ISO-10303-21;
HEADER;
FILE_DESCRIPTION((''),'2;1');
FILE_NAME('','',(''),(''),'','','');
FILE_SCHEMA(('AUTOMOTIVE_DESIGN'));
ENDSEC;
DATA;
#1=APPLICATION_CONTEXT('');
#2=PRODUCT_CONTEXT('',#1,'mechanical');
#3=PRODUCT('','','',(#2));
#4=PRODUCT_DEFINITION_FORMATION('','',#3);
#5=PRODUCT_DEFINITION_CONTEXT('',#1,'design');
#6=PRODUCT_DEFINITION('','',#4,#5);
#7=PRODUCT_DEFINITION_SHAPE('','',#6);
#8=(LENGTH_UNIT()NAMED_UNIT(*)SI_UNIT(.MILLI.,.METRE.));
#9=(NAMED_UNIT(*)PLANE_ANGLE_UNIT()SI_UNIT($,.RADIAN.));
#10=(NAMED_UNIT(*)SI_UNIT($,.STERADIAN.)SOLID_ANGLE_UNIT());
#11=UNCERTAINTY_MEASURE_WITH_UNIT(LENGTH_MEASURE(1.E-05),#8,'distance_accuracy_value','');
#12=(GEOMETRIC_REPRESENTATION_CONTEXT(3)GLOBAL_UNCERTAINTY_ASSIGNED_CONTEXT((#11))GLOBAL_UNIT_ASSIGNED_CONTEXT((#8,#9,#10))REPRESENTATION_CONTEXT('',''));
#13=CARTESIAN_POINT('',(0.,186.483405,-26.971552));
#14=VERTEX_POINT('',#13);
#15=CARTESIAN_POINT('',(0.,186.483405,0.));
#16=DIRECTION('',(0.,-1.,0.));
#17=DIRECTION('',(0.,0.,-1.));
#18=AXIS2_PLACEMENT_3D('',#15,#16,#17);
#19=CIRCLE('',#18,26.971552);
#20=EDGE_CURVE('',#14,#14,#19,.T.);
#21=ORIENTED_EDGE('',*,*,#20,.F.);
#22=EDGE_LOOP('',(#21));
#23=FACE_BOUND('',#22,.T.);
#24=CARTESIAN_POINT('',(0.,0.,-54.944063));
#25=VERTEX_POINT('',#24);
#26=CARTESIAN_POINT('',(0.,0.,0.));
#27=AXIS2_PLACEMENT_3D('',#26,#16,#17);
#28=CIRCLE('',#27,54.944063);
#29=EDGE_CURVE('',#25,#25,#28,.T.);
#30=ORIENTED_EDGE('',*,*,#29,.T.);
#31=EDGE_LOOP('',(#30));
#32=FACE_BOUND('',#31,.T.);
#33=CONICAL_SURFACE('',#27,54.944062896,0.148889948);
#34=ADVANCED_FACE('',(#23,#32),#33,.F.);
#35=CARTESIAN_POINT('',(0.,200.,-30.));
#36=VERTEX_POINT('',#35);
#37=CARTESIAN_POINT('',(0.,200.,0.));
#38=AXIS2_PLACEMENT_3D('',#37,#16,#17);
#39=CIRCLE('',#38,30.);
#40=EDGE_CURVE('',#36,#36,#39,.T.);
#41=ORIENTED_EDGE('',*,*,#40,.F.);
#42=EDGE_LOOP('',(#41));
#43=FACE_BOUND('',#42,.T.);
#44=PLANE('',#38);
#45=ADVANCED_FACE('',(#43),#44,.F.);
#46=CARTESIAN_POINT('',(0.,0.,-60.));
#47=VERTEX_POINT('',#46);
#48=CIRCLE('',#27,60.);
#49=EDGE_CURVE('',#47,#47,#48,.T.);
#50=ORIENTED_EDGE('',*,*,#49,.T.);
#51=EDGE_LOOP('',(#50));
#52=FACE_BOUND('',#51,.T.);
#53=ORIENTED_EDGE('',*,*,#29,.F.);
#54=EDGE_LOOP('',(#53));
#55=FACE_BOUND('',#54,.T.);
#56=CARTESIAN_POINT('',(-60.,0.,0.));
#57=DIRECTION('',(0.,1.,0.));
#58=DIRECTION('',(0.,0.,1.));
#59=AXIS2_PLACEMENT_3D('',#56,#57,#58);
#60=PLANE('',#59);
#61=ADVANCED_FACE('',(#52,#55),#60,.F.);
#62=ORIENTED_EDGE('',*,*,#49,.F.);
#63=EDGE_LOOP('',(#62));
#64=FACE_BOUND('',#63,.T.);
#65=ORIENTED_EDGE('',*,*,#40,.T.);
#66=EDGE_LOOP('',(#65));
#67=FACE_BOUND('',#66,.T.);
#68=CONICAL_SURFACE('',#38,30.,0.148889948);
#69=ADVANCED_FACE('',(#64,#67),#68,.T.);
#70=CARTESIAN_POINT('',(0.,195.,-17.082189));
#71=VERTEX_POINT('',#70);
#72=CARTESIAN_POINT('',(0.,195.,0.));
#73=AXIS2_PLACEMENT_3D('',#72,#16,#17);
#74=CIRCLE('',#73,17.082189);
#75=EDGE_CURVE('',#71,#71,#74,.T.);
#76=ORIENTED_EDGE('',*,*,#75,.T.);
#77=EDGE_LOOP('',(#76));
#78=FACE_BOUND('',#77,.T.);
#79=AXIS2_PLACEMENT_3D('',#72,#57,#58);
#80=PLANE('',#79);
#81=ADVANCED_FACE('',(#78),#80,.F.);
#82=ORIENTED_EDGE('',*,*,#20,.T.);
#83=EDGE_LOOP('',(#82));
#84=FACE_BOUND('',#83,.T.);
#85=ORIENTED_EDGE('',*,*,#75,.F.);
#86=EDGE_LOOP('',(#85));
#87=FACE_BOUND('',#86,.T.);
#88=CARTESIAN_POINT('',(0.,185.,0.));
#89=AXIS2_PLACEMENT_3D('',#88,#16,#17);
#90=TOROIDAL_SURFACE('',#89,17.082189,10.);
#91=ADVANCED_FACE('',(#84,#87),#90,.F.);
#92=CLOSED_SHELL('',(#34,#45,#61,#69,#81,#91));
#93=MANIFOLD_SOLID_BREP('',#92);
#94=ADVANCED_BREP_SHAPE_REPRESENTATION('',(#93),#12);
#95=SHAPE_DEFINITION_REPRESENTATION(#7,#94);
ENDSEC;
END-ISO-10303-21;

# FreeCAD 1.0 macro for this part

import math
import FreeCAD as App
import Part
import Sketcher
from FreeCAD import Vector
Q = App.Units.Quantity

doc = App.newDocument("Part")
body = doc.addObject("PartDesign::Body", "Body")

# Sketch on XY plane
sketch1 = doc.addObject("Sketcher::SketchObject", "Sketch")
body.addObject(sketch1)
sketch1.AttachmentSupport = (doc.XY_Plane, [""])
sketch1.MapMode = "FlatFace"
sketch1.addGeometry([
    Part.LineSegment(Vector(-55, 0, 0), Vector(-42, 86, 0)),  # 0
    Part.LineSegment(Vector(-42, 86, 0), Vector(-27, 186, 0)),  # 1
    Part.ArcOfCircle(Part.Circle(Vector(-17, 185, 0), Vector(0, 0, 1), 10), math.radians(90), math.radians(171)),  # 2
    Part.LineSegment(Vector(-17, 195, 0), Vector(0, 195, 0)),  # 3
    Part.LineSegment(Vector(0, 195, 0), Vector(0, 200, 0)),  # 4
    Part.LineSegment(Vector(0, 200, 0), Vector(-30, 200, 0)),  # 5
    Part.LineSegment(Vector(-30, 200, 0), Vector(-60, 0, 0)),  # 6
    Part.LineSegment(Vector(-60, 0, 0), Vector(-55, 0, 0)),  # 7
], False)
sketch1.addConstraint([
    Sketcher.Constraint("Coincident", 0, 2, 1, 1),
    Sketcher.Constraint("Tangent", 1, 2, 2, 2),
    Sketcher.Constraint("Tangent", 2, 1, 3, 1),
    Sketcher.Constraint("Coincident", 3, 2, 4, 1),
    Sketcher.Constraint("Coincident", 4, 2, 5, 1),
    Sketcher.Constraint("Coincident", 5, 2, 6, 1),
    Sketcher.Constraint("Coincident", 6, 2, 7, 1),
    Sketcher.Constraint("Coincident", 7, 2, 0, 1),
    Sketcher.Constraint("Horizontal", 3),
    Sketcher.Constraint("Vertical", 4),
    Sketcher.Constraint("Horizontal", 5),
    Sketcher.Constraint("Horizontal", 7),
    Sketcher.Constraint("PointOnObject", 3, 2, -2),
    Sketcher.Constraint("PointOnObject", 6, 2, -1),
    Sketcher.Constraint("Parallel", 0, 1),
    Sketcher.Constraint("Parallel", 1, 6),
    Sketcher.Constraint("Radius", 2, Q("10 mm")),
    Sketcher.Constraint("DistanceX", 5, 2, 5, 1, Q("30 mm")),
    Sketcher.Constraint("DistanceY", 4, 1, 4, 2, Q("5 mm")),
    Sketcher.Constraint("DistanceY", -1, 1, 2, 3, Q("185 mm")),
    Sketcher.Constraint("DistanceX", 6, 2, -1, 1, Q("60 mm")),
    Sketcher.Constraint("DistanceX", 0, 2, 1, 2, Q("15 mm")),
    Sketcher.Constraint("DistanceX", 3, 1, 3, 2, Q("17.082189 mm")),
])
revolution = doc.addObject("PartDesign::Revolution", "Revolution")
body.addObject(revolution)
revolution.Profile = sketch1
revolution.ReferenceAxis = (sketch1, ["V_Axis"])
revolution.Angle = 360

doc.recompute()
